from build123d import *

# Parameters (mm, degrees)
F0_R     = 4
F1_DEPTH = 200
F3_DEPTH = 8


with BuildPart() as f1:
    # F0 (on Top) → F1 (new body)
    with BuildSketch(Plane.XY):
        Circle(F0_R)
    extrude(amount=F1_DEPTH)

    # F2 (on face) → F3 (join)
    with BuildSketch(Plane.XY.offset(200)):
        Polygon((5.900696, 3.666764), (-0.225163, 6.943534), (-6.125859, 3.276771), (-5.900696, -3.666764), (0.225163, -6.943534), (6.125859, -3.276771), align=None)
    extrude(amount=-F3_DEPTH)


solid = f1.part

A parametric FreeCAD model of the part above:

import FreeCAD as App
import Part
import Sketcher

doc = App.newDocument("Part")
body = doc.addObject("PartDesign::Body", "Body")

sketch1 = body.newObject("Sketcher::SketchObject", "Sketch")
sketch1.AttachmentSupport = (doc.getObject("XY_Plane"), [""])
sketch1.MapMode = "FlatFace"
sketch1.addGeometry(Part.Circle(App.Vector(0, 0, 0), App.Vector(0, 0, 1), 4), False)
sketch1.addConstraint(Sketcher.Constraint("Coincident", 0, 3, -1, 1))
sketch1.addConstraint(Sketcher.Constraint("Diameter", 0, 8.0))
pad1 = body.newObject("PartDesign::Pad", "Pad")
pad1.Profile = sketch1
pad1.Length = 200

sketch2 = body.newObject("Sketcher::SketchObject", "Sketch001")
sketch2.AttachmentSupport = (doc.getObject("XY_Plane"), [""])
sketch2.MapMode = "FlatFace"
sketch2.AttachmentOffset = App.Placement(App.Vector(0, 0, 200), App.Rotation())
sketch2.addGeometry(Part.LineSegment(App.Vector(6, 4, 0), App.Vector(0, 7, 0)), False)
sketch2.addGeometry(Part.LineSegment(App.Vector(0, 7, 0), App.Vector(-6, 3, 0)), False)
sketch2.addGeometry(Part.LineSegment(App.Vector(-6, 3, 0), App.Vector(-6, -4, 0)), False)
sketch2.addGeometry(Part.LineSegment(App.Vector(-6, -4, 0), App.Vector(0, -7, 0)), False)
sketch2.addGeometry(Part.LineSegment(App.Vector(0, -7, 0), App.Vector(6, -3, 0)), False)
sketch2.addGeometry(Part.LineSegment(App.Vector(6, -3, 0), App.Vector(6, 4, 0)), False)
sketch2.addConstraint(Sketcher.Constraint("Coincident", 0, 2, 1, 1))
sketch2.addConstraint(Sketcher.Constraint("Coincident", 1, 2, 2, 1))
sketch2.addConstraint(Sketcher.Constraint("Coincident", 2, 2, 3, 1))
sketch2.addConstraint(Sketcher.Constraint("Coincident", 3, 2, 4, 1))
sketch2.addConstraint(Sketcher.Constraint("Coincident", 4, 2, 5, 1))
sketch2.addConstraint(Sketcher.Constraint("Coincident", 5, 2, 0, 1))
sketch2.addConstraint(Sketcher.Constraint("Symmetric", 0, 2, 3, 2, -1, 1))
sketch2.addConstraint(Sketcher.Constraint("Symmetric", 1, 2, 4, 2, -1, 1))
sketch2.addConstraint(Sketcher.Constraint("Symmetric", 2, 2, 5, 2, -1, 1))
sketch2.addConstraint(Sketcher.Constraint("Equal", 0, 1))
sketch2.addConstraint(Sketcher.Constraint("Equal", 1, 2))
sketch2.addConstraint(Sketcher.Constraint("DistanceX", 1, 2, -1, 1, 6.125859))
sketch2.addConstraint(Sketcher.Constraint("DistanceY", -1, 1, 1, 2, 3.276771))
sketch2.addConstraint(Sketcher.Constraint("DistanceX", 2, 2, 3, 2, 6.125859))
sketch2.addConstraint(Sketcher.Constraint("DistanceY", 3, 2, 2, 2, 3.27677))
pad2 = body.newObject("PartDesign::Pad", "Pad001")
pad2.Profile = sketch2
pad2.Length = 8
pad2.Reversed = True

doc.recompute()
